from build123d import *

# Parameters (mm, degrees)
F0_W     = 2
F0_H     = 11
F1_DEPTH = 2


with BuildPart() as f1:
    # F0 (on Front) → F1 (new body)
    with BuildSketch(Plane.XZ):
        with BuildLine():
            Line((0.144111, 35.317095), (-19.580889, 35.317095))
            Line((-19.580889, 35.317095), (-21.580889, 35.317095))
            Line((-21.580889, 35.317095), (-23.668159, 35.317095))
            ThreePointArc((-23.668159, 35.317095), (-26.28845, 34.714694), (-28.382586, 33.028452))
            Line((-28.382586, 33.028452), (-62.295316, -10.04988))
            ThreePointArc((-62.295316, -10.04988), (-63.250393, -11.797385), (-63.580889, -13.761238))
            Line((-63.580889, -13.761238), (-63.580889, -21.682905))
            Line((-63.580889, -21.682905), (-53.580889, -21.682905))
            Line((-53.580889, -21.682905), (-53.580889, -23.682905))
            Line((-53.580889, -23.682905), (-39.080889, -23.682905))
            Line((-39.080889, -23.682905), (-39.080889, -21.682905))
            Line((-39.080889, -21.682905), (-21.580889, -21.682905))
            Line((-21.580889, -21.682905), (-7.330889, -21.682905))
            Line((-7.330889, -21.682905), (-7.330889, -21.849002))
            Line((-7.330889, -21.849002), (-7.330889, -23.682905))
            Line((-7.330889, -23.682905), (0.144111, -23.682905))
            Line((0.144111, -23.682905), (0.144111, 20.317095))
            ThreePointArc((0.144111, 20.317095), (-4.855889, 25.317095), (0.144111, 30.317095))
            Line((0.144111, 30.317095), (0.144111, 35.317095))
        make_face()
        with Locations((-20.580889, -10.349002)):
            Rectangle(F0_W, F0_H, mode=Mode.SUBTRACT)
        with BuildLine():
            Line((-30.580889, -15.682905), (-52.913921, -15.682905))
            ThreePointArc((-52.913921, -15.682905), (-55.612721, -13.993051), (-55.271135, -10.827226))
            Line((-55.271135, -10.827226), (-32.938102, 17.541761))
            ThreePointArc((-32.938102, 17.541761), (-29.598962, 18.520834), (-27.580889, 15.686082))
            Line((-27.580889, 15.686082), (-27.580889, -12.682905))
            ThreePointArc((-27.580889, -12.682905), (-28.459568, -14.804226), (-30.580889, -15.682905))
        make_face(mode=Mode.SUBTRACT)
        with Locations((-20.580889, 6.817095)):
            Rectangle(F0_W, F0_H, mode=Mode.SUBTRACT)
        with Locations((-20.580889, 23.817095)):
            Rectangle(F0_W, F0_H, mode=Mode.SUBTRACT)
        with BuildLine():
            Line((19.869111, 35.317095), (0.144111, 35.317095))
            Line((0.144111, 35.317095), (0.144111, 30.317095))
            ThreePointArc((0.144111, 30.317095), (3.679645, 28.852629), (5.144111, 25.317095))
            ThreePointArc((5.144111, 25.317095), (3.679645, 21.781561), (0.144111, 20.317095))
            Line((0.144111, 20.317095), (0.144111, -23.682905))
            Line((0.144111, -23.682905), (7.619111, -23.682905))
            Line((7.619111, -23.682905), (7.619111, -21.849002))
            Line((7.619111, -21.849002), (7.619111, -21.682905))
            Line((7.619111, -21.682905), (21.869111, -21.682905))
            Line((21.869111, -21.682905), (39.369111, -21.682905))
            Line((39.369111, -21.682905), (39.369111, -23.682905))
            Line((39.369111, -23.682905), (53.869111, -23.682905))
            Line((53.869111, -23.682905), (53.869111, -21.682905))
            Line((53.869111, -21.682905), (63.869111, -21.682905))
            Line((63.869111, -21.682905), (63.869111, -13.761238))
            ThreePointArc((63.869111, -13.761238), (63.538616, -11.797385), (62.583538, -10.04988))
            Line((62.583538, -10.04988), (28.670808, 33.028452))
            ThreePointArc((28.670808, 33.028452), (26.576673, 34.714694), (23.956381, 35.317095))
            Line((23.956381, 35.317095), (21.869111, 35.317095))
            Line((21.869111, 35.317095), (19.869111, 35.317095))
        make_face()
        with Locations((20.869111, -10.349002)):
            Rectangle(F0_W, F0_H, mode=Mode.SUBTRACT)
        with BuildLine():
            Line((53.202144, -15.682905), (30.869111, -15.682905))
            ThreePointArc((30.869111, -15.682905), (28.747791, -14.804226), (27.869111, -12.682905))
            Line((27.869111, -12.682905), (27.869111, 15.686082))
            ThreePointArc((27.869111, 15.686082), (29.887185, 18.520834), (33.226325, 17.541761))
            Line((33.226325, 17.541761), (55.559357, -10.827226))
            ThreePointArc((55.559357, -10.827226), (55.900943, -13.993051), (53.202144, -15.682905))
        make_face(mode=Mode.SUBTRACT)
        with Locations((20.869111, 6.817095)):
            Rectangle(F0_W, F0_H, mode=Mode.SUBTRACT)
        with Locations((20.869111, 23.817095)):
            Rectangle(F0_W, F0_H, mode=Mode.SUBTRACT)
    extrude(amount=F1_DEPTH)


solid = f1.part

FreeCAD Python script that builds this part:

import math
import FreeCAD as App
import Part
import Sketcher
from FreeCAD import Vector


def add_polygon(sketch, points):
    """Adds a closed chain of lines whose ends are joined by coincident constraints."""
    first, n = sketch.GeometryCount, len(points)
    for a, b in zip(points, points[1:] + points[:1]):
        sketch.addGeometry(Part.LineSegment(App.Vector(*a, 0), App.Vector(*b, 0)), False)
    for i in range(n):
        sketch.addConstraint(Sketcher.Constraint("Coincident", first + i, 2, first + (i + 1) % n, 1))

doc = App.newDocument("Part")
body = doc.addObject("PartDesign::Body", "Body")

# Sketch on XZ plane
sketch1 = body.newObject("Sketcher::SketchObject", "Sketch")
sketch1.AttachmentSupport = (doc.getObject("XZ_Plane"), [""])
sketch1.MapMode = "FlatFace"
sketch1.addGeometry(Part.ArcOfCircle(Part.Circle(Vector(-23.66816, 29.317098, 0), Vector(0, 0, 1), 5.999997), math.radians(89.999994), math.radians(141.788996)), False)  # 0
sketch1.addGeometry(Part.LineSegment(Vector(-28.382586, 33.028452, 0), Vector(-62.295316, -10.04988, 0)), False)  # 1
sketch1.addGeometry(Part.ArcOfCircle(Part.Circle(Vector(-57.580881, -13.761241, 0), Vector(0, 0, 1), 6.000008), math.radians(141.788998), math.radians(179.999972)), False)  # 2
sketch1.addGeometry(Part.LineSegment(Vector(-63.580889, -13.761238, 0), Vector(-63.580889, -21.682905, 0)), False)  # 3
sketch1.addGeometry(Part.LineSegment(Vector(-63.580889, -21.682905, 0), Vector(-53.580889, -21.682905, 0)), False)  # 4
sketch1.addGeometry(Part.LineSegment(Vector(-53.580889, -21.682905, 0), Vector(-53.580889, -23.682905, 0)), False)  # 5
sketch1.addGeometry(Part.LineSegment(Vector(-53.580889, -23.682905, 0), Vector(-39.080889, -23.682905, 0)), False)  # 6
sketch1.addGeometry(Part.LineSegment(Vector(-39.080889, -23.682905, 0), Vector(-39.080889, -21.682905, 0)), False)  # 7
sketch1.addGeometry(Part.LineSegment(Vector(-39.080889, -21.682905, 0), Vector(-7.330889, -21.682905, 0)), False)  # 8
sketch1.addGeometry(Part.LineSegment(Vector(-7.330889, -21.682905, 0), Vector(-7.330889, -23.682905, 0)), False)  # 9
sketch1.addGeometry(Part.LineSegment(Vector(-7.330889, -23.682905, 0), Vector(7.619111, -23.682905, 0)), False)  # 10
sketch1.addGeometry(Part.LineSegment(Vector(7.619111, -23.682905, 0), Vector(7.619111, -21.682905, 0)), False)  # 11
sketch1.addGeometry(Part.LineSegment(Vector(7.619111, -21.682905, 0), Vector(39.369111, -21.682905, 0)), False)  # 12
sketch1.addGeometry(Part.LineSegment(Vector(39.369111, -21.682905, 0), Vector(39.369111, -23.682905, 0)), False)  # 13
sketch1.addGeometry(Part.LineSegment(Vector(39.369111, -23.682905, 0), Vector(53.869111, -23.682905, 0)), False)  # 14
sketch1.addGeometry(Part.LineSegment(Vector(53.869111, -23.682905, 0), Vector(53.869111, -21.682905, 0)), False)  # 15
sketch1.addGeometry(Part.LineSegment(Vector(53.869111, -21.682905, 0), Vector(63.869111, -21.682905, 0)), False)  # 16
sketch1.addGeometry(Part.LineSegment(Vector(63.869111, -21.682905, 0), Vector(63.869111, -13.761238, 0)), False)  # 17
sketch1.addGeometry(Part.ArcOfCircle(Part.Circle(Vector(57.869119, -13.761235, 0), Vector(0, 0, 1), 5.999992), math.radians(-0.000026), math.radians(38.211055)), False)  # 18
sketch1.addGeometry(Part.LineSegment(Vector(62.583538, -10.04988, 0), Vector(28.670808, 33.028452, 0)), False)  # 19
sketch1.addGeometry(Part.ArcOfCircle(Part.Circle(Vector(23.956384, 29.317102, 0), Vector(0, 0, 1), 5.999993), math.radians(38.210986), math.radians(90.000024)), False)  # 20
sketch1.addGeometry(Part.LineSegment(Vector(23.956381, 35.317095, 0), Vector(-23.668159, 35.317095, 0)), False)  # 21
add_polygon(sketch1, [(-19.580889, -15.849002), (-21.580889, -15.849002), (-21.580889, -4.849002), (-19.580889, -4.849002)])  # lines 22-25
sketch1.addGeometry(Part.ArcOfCircle(Part.Circle(Vector(-30.580887, -12.682907, 0), Vector(0, 0, 1), 2.999998), math.radians(-90.000043), math.radians(0.000043)), False)  # 26
sketch1.addGeometry(Part.LineSegment(Vector(-30.580889, -15.682905, 0), Vector(-52.913921, -15.682905, 0)), False)  # 27
sketch1.addGeometry(Part.ArcOfCircle(Part.Circle(Vector(-52.913922, -12.682905, 0), Vector(0, 0, 1), 3), math.radians(141.788964), math.radians(270.000016)), False)  # 28
sketch1.addGeometry(Part.LineSegment(Vector(-55.271135, -10.827226, 0), Vector(-32.938102, 17.541761, 0)), False)  # 29
sketch1.addGeometry(Part.ArcOfCircle(Part.Circle(Vector(-30.580889, 15.686082, 0), Vector(0, 0, 1), 3), math.radians(-0.000002), math.radians(141.788969)), False)  # 30
sketch1.addGeometry(Part.LineSegment(Vector(-27.580889, 15.686082, 0), Vector(-27.580889, -12.682905, 0)), False)  # 31
add_polygon(sketch1, [(-19.580889, 1.317095), (-21.580889, 1.317095), (-21.580889, 12.317095), (-19.580889, 12.317095)])  # lines 32-35
add_polygon(sketch1, [(21.869111, -15.849002), (19.869111, -15.849002), (19.869111, -4.849002), (21.869111, -4.849002)])  # lines 36-39
add_polygon(sketch1, [(21.869111, 1.317095), (19.869111, 1.317095), (19.869111, 12.317095), (21.869111, 12.317095)])  # lines 40-43
sketch1.addGeometry(Part.ArcOfCircle(Part.Circle(Vector(53.202144, -12.682905, 0), Vector(0, 0, 1), 3), math.radians(-89.999997), math.radians(38.211036)), False)  # 44
sketch1.addGeometry(Part.LineSegment(Vector(53.202144, -15.682905, 0), Vector(30.869111, -15.682905, 0)), False)  # 45
sketch1.addGeometry(Part.ArcOfCircle(Part.Circle(Vector(30.86911, -12.682906, 0), Vector(0, 0, 1), 2.999999), math.radians(179.99999), math.radians(270.00001)), False)  # 46
sketch1.addGeometry(Part.LineSegment(Vector(27.869111, -12.682905, 0), Vector(27.869111, 15.686082, 0)), False)  # 47
sketch1.addGeometry(Part.ArcOfCircle(Part.Circle(Vector(30.869111, 15.686081, 0), Vector(0, 0, 1), 3), math.radians(38.211041), math.radians(179.999985)), False)  # 48
sketch1.addGeometry(Part.LineSegment(Vector(33.226325, 17.541761, 0), Vector(55.559357, -10.827226, 0)), False)  # 49
add_polygon(sketch1, [(-19.580889, 18.317095), (-21.580889, 18.317095), (-21.580889, 29.317095), (-19.580889, 29.317095)])  # lines 50-53
add_polygon(sketch1, [(21.869111, 18.317095), (19.869111, 18.317095), (19.869111, 29.317095), (21.869111, 29.317095)])  # lines 54-57
sketch1.addGeometry(Part.ArcOfCircle(Part.Circle(Vector(0.144111, 25.317095, 0), Vector(0, 0, 1), 5), math.radians(90), math.radians(270)), False)  # 58
sketch1.addGeometry(Part.ArcOfCircle(Part.Circle(Vector(0.144111, 25.317095, 0), Vector(0, 0, 1), 5), math.radians(-0.000004), math.radians(90.000004)), False)  # 59
sketch1.addGeometry(Part.ArcOfCircle(Part.Circle(Vector(0.144111, 25.317095, 0), Vector(0, 0, 1), 5), math.radians(-90.000004), math.radians(0.000004)), False)  # 60
sketch1.addConstraint([
    Sketcher.Constraint("Coincident", 0, 2, 1, 1),
    Sketcher.Constraint("Coincident", 1, 2, 2, 1),
    Sketcher.Constraint("Coincident", 2, 2, 3, 1),
    Sketcher.Constraint("Coincident", 3, 2, 4, 1),
    Sketcher.Constraint("Coincident", 4, 2, 5, 1),
    Sketcher.Constraint("Coincident", 5, 2, 6, 1),
    Sketcher.Constraint("Coincident", 6, 2, 7, 1),
    Sketcher.Constraint("Coincident", 7, 2, 8, 1),
    Sketcher.Constraint("Coincident", 8, 2, 9, 1),
    Sketcher.Constraint("Coincident", 9, 2, 10, 1),
    Sketcher.Constraint("Coincident", 10, 2, 11, 1),
    Sketcher.Constraint("Coincident", 11, 2, 12, 1),
    Sketcher.Constraint("Coincident", 12, 2, 13, 1),
    Sketcher.Constraint("Coincident", 13, 2, 14, 1),
    Sketcher.Constraint("Coincident", 14, 2, 15, 1),
    Sketcher.Constraint("Coincident", 15, 2, 16, 1),
    Sketcher.Constraint("Coincident", 16, 2, 17, 1),
    Sketcher.Constraint("Coincident", 17, 2, 18, 1),
    Sketcher.Constraint("Coincident", 18, 2, 19, 1),
    Sketcher.Constraint("Coincident", 19, 2, 20, 1),
    Sketcher.Constraint("Coincident", 20, 2, 21, 1),
    Sketcher.Constraint("Coincident", 21, 2, 0, 1),
    Sketcher.Constraint("Coincident", 26, 1, 27, 1),
    Sketcher.Constraint("Coincident", 27, 2, 28, 2),
    Sketcher.Constraint("Coincident", 28, 1, 29, 1),
    Sketcher.Constraint("Coincident", 29, 2, 30, 2),
    Sketcher.Constraint("Coincident", 30, 1, 31, 1),
    Sketcher.Constraint("Coincident", 31, 2, 26, 2),
    Sketcher.Constraint("Coincident", 44, 1, 45, 1),
    Sketcher.Constraint("Coincident", 45, 2, 46, 2),
    Sketcher.Constraint("Coincident", 46, 1, 47, 1),
    Sketcher.Constraint("Coincident", 47, 2, 48, 2),
    Sketcher.Constraint("Coincident", 48, 1, 49, 1),
    Sketcher.Constraint("Coincident", 49, 2, 44, 2),
    Sketcher.Constraint("Coincident", 58, 1, 59, 2),
    Sketcher.Constraint("Coincident", 59, 1, 60, 2),
    Sketcher.Constraint("Coincident", 60, 1, 58, 2),
    Sketcher.Constraint("Vertical", 3),
    Sketcher.Constraint("Horizontal", 4),
    Sketcher.Constraint("Vertical", 5),
    Sketcher.Constraint("Horizontal", 6),
    Sketcher.Constraint("Vertical", 7),
    Sketcher.Constraint("Horizontal", 8),
    Sketcher.Constraint("Vertical", 9),
    Sketcher.Constraint("Horizontal", 10),
    Sketcher.Constraint("Vertical", 11),
    Sketcher.Constraint("Horizontal", 12),
    Sketcher.Constraint("Vertical", 13),
    Sketcher.Constraint("Horizontal", 14),
    Sketcher.Constraint("Vertical", 15),
    Sketcher.Constraint("Horizontal", 16),
    Sketcher.Constraint("Vertical", 17),
    Sketcher.Constraint("Horizontal", 21),
    Sketcher.Constraint("Horizontal", 22),
    Sketcher.Constraint("Vertical", 23),
    Sketcher.Constraint("Horizontal", 24),
    Sketcher.Constraint("Vertical", 25),
    Sketcher.Constraint("Horizontal", 27),
    Sketcher.Constraint("Vertical", 31),
    Sketcher.Constraint("Horizontal", 32),
    Sketcher.Constraint("Vertical", 33),
    Sketcher.Constraint("Horizontal", 34),
    Sketcher.Constraint("Vertical", 35),
    Sketcher.Constraint("Horizontal", 36),
    Sketcher.Constraint("Vertical", 37),
    Sketcher.Constraint("Horizontal", 38),
    Sketcher.Constraint("Vertical", 39),
    Sketcher.Constraint("Horizontal", 40),
    Sketcher.Constraint("Vertical", 41),
    Sketcher.Constraint("Horizontal", 42),
    Sketcher.Constraint("Vertical", 43),
    Sketcher.Constraint("Horizontal", 45),
    Sketcher.Constraint("Vertical", 47),
    Sketcher.Constraint("Horizontal", 50),
    Sketcher.Constraint("Vertical", 51),
    Sketcher.Constraint("Horizontal", 52),
    Sketcher.Constraint("Vertical", 53),
    Sketcher.Constraint("Horizontal", 54),
    Sketcher.Constraint("Vertical", 55),
    Sketcher.Constraint("Horizontal", 56),
    Sketcher.Constraint("Vertical", 57),
    Sketcher.Constraint("Coincident", 59, 3, 58, 3),
    Sketcher.Constraint("Radius", 28, 3.0),
    Sketcher.Constraint("Radius", 30, 3.0),
    Sketcher.Constraint("Radius", 44, 3.0),
    Sketcher.Constraint("Radius", 46, 2.999999),
    Sketcher.Constraint("Radius", 48, 3.0),
    Sketcher.Constraint("Radius", 58, 5.0),
    Sketcher.Constraint("Radius", 60, 5.0),
    Sketcher.Constraint("DistanceX", 4, 1, 4, 2, 10.0),
    Sketcher.Constraint("DistanceX", 16, 1, 16, 2, 10.0),
    Sketcher.Constraint("DistanceX", 22, 2, 22, 1, 2.0),
    Sketcher.Constraint("DistanceX", 32, 2, 32, 1, 2.0),
    Sketcher.Constraint("DistanceX", 36, 2, 36, 1, 2.0),
    Sketcher.Constraint("DistanceX", 40, 2, 40, 1, 2.0),
    Sketcher.Constraint("DistanceX", 50, 2, 50, 1, 2.0),
    Sketcher.Constraint("DistanceX", 54, 2, 54, 1, 2.0),
    Sketcher.Constraint("DistanceY", 5, 2, 5, 1, 2.0),
    Sketcher.Constraint("DistanceY", 7, 1, 7, 2, 2.0),
    Sketcher.Constraint("DistanceY", 9, 2, 9, 1, 2.0),
    Sketcher.Constraint("DistanceY", 11, 1, 11, 2, 2.0),
    Sketcher.Constraint("DistanceY", 13, 2, 13, 1, 2.0),
    Sketcher.Constraint("DistanceY", 15, 1, 15, 2, 2.0),
    Sketcher.Constraint("DistanceY", 23, 1, 23, 2, 11.0),
    Sketcher.Constraint("DistanceY", 33, 1, 33, 2, 11.0),
    Sketcher.Constraint("DistanceY", 37, 1, 37, 2, 11.0),
    Sketcher.Constraint("DistanceY", 41, 1, 41, 2, 11.0),
    Sketcher.Constraint("DistanceY", 51, 1, 51, 2, 11.0),
    Sketcher.Constraint("DistanceY", 55, 1, 55, 2, 11.0),
    Sketcher.Constraint("DistanceX", 6, 1, 6, 2, 14.5),
    Sketcher.Constraint("DistanceX", 14, 1, 14, 2, 14.5),
    Sketcher.Constraint("DistanceX", 8, 1, 8, 2, 31.75),
    Sketcher.Constraint("DistanceX", 10, 1, 10, 2, 14.95),
    Sketcher.Constraint("DistanceX", 12, 1, 12, 2, 31.75),
    Sketcher.Constraint("Radius", 2, 6.000008),
    Sketcher.Constraint("DistanceY", 23, 2, -1, 1, 4.849002),
    Sketcher.Constraint("DistanceY", 37, 2, -1, 1, 4.849002),
    Sketcher.Constraint("Radius", 0, 5.999997),
    Sketcher.Constraint("Radius", 18, 5.999992),
    Sketcher.Constraint("Radius", 20, 5.999993),
    Sketcher.Constraint("Radius", 26, 2.999998),
    Sketcher.Constraint("Distance", 29, 36.1049),
    Sketcher.Constraint("Distance", 49, 36.104899),
    Sketcher.Constraint("DistanceX", 21, 2, 21, 1, 47.62454),
    Sketcher.Constraint("DistanceY", -1, 1, 20, 3, 29.317102),
    Sketcher.Constraint("DistanceX", 27, 2, 27, 1, 22.333032),
    Sketcher.Constraint("DistanceX", 45, 2, 45, 1, 22.333033),
    Sketcher.Constraint("DistanceY", 3, 2, 3, 1, 7.921667),
    Sketcher.Constraint("DistanceY", 17, 1, 17, 2, 7.921667),
    Sketcher.Constraint("DistanceY", 31, 2, 31, 1, 28.368987),
    Sketcher.Constraint("DistanceY", 47, 1, 47, 2, 28.368987),
    Sketcher.Constraint("DistanceX", 0, 3, -1, 1, 23.66816),
    Sketcher.Constraint("DistanceX", 2, 3, -1, 1, 57.580881),
    Sketcher.Constraint("DistanceY", 2, 3, -1, 1, 13.761241),
    Sketcher.Constraint("DistanceX", 28, 3, -1, 1, 52.913922),
    Sketcher.Constraint("DistanceX", 30, 3, -1, 1, 30.580889),
    Sketcher.Constraint("DistanceX", -1, 1, 46, 3, 30.86911),
    Sketcher.Constraint("DistanceY", -1, 1, 48, 3, 15.686081),
    Sketcher.Constraint("DistanceX", -1, 1, 58, 3, 0.144111),
    Sketcher.Constraint("DistanceY", 1, 2, -1, 1, 10.04988),
    Sketcher.Constraint("DistanceY", 2, 2, -1, 1, 13.761238),
    Sketcher.Constraint("DistanceY", 18, 2, -1, 1, 10.04988),
    Sketcher.Constraint("DistanceX", -1, 1, 19, 2, 28.670808),
    Sketcher.Constraint("DistanceX", -1, 1, 20, 2, 23.956381),
    Sketcher.Constraint("DistanceX", 22, 2, -1, 1, 21.580889),
    Sketcher.Constraint("DistanceX", 26, 1, -1, 1, 30.580889),
    Sketcher.Constraint("DistanceY", -1, 1, 29, 2, 17.541761),
    Sketcher.Constraint("DistanceX", 32, 2, -1, 1, 21.580889),
    Sketcher.Constraint("DistanceX", -1, 1, 36, 2, 19.869111),
    Sketcher.Constraint("DistanceX", -1, 1, 40, 2, 19.869111),
    Sketcher.Constraint("DistanceX", -1, 1, 45, 2, 30.869111),
    Sketcher.Constraint("DistanceY", -1, 1, 48, 1, 17.541761),
    Sketcher.Constraint("DistanceX", 50, 2, -1, 1, 21.580889),
    Sketcher.Constraint("DistanceX", -1, 1, 54, 2, 19.869111),
    Sketcher.Constraint("DistanceX", -1, 1, 58, 1, 0.144111),
    Sketcher.Constraint("DistanceX", -1, 1, 60, 1, 0.144111),
    Sketcher.Constraint("Distance", 1, 54.825322),
    Sketcher.Constraint("Distance", 19, 54.825322),
    Sketcher.Constraint("DistanceY", 18, 3, -1, 1, 13.761235),
    Sketcher.Constraint("DistanceY", 26, 3, -1, 1, 12.682907),
    Sketcher.Constraint("DistanceY", -1, 1, 30, 3, 15.686082),
    Sketcher.Constraint("DistanceX", -1, 1, 44, 3, 53.202144),
    Sketcher.Constraint("DistanceY", 44, 3, -1, 1, 12.682905),
    Sketcher.Constraint("DistanceY", -1, 1, 58, 3, 25.317095),
    Sketcher.Constraint("DistanceY", -1, 1, 30, 1, 15.686082),
    Sketcher.Constraint("DistanceY", -1, 1, 32, 2, 1.317095),
    Sketcher.Constraint("DistanceY", -1, 1, 40, 2, 1.317095),
    Sketcher.Constraint("DistanceY", 46, 1, -1, 1, 12.682905),
    Sketcher.Constraint("DistanceY", -1, 1, 50, 2, 18.317095),
    Sketcher.Constraint("DistanceY", -1, 1, 54, 2, 18.317095),
    Sketcher.Constraint("DistanceY", -1, 1, 59, 1, 25.317095),
])
pad1 = body.newObject("PartDesign::Pad", "Pad")
pad1.Profile = sketch1
pad1.Length = 2

doc.recompute()
